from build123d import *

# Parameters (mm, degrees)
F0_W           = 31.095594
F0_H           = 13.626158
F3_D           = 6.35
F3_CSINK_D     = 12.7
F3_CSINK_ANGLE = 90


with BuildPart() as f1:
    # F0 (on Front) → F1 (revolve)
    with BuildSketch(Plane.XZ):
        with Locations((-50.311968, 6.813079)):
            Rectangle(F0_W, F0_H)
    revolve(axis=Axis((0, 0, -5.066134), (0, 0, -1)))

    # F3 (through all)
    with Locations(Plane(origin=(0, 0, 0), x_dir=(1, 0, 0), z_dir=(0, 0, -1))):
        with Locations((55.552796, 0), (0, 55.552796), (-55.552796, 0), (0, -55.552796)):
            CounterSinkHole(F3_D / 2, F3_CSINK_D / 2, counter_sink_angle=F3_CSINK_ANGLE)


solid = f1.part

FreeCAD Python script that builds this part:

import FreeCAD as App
import Part
import Sketcher
from FreeCAD import Vector
Q = App.Units.Quantity


def add_polygon(sketch, points):
    """Adds a closed chain of lines whose ends are joined by coincident constraints."""
    first, n = sketch.GeometryCount, len(points)
    for a, b in zip(points, points[1:] + points[:1]):
        sketch.addGeometry(Part.LineSegment(App.Vector(*a, 0), App.Vector(*b, 0)), False)
    for i in range(n):
        sketch.addConstraint(Sketcher.Constraint("Coincident", first + i, 2, first + (i + 1) % n, 1))

doc = App.newDocument("Part")
body = doc.addObject("PartDesign::Body", "Body")

sketch1 = doc.addObject("Sketcher::SketchObject", "Sketch")
body.addObject(sketch1)
sketch1.AttachmentSupport = (doc.XZ_Plane, [""])
sketch1.MapMode = "FlatFace"
add_polygon(sketch1, [(-66, 14), (-66, 0), (-35, 0), (-35, 14)])
sketch1.addConstraint([
    Sketcher.Constraint("Vertical", 0),
    Sketcher.Constraint("Horizontal", 1),
    Sketcher.Constraint("Vertical", 2),
    Sketcher.Constraint("Horizontal", 3),
    Sketcher.Constraint("PointOnObject", 0, 2, -1),
    Sketcher.Constraint("DistanceX", 1, 1, 1, 2, Q("31.095594 mm")),
    Sketcher.Constraint("DistanceY", 0, 2, 0, 1, Q("13.626158 mm")),
    Sketcher.Constraint("DistanceX", 1, 2, -1, 1, Q("34.764171 mm")),
])
revolution = doc.addObject("PartDesign::Revolution", "Revolution")
body.addObject(revolution)
revolution.Profile = sketch1
revolution.ReferenceAxis = (sketch1, ["V_Axis"])
revolution.Angle = 360

sketch2 = doc.addObject("Sketcher::SketchObject", "Sketch001")
body.addObject(sketch2)
sketch2.AttachmentSupport = (doc.XY_Plane, [""])
sketch2.MapMode = "FlatFace"
sketch2.addGeometry([
    Part.Circle(Vector(55.6, 0, 0), Vector(0, 0, 1), 3.2),
    Part.Circle(Vector(0, -55.6, 0), Vector(0, 0, 1), 3.2),
    Part.Circle(Vector(-55.6, 0, 0), Vector(0, 0, 1), 3.2),
    Part.Circle(Vector(0, 55.6, 0), Vector(0, 0, 1), 3.2),
], False)
sketch2.addConstraint([
    Sketcher.Constraint("Equal", 0, 1),
    Sketcher.Constraint("Equal", 1, 2),
    Sketcher.Constraint("Equal", 2, 3),
    Sketcher.Constraint("Symmetric", 0, 3, 2, 3, -1, 1),
    Sketcher.Constraint("Symmetric", 1, 3, 3, 3, -1, 1),
    Sketcher.Constraint("PointOnObject", 0, 3, -1),
    Sketcher.Constraint("PointOnObject", 1, 3, -2),
    Sketcher.Constraint("Diameter", 0, Q("0.25 in")),
    Sketcher.Constraint("DistanceX", 2, 3, 0, 3, Q("111.105592 mm")),
    Sketcher.Constraint("DistanceY", 1, 3, 3, 3, Q("111.105592 mm")),
])
doc.recompute()
hole = doc.addObject("PartDesign::Hole", "Hole")
body.addObject(hole)
hole.Profile = sketch2
hole.ThreadType = "None"
hole.Diameter = Q("0.25 in")
hole.DepthType = "ThroughAll"
hole.HoleCutType = "Countersink"
hole.HoleCutDiameter = Q("0.5 in")
hole.HoleCutCountersinkAngle = 90
hole.Reversed = True

doc.recompute()
